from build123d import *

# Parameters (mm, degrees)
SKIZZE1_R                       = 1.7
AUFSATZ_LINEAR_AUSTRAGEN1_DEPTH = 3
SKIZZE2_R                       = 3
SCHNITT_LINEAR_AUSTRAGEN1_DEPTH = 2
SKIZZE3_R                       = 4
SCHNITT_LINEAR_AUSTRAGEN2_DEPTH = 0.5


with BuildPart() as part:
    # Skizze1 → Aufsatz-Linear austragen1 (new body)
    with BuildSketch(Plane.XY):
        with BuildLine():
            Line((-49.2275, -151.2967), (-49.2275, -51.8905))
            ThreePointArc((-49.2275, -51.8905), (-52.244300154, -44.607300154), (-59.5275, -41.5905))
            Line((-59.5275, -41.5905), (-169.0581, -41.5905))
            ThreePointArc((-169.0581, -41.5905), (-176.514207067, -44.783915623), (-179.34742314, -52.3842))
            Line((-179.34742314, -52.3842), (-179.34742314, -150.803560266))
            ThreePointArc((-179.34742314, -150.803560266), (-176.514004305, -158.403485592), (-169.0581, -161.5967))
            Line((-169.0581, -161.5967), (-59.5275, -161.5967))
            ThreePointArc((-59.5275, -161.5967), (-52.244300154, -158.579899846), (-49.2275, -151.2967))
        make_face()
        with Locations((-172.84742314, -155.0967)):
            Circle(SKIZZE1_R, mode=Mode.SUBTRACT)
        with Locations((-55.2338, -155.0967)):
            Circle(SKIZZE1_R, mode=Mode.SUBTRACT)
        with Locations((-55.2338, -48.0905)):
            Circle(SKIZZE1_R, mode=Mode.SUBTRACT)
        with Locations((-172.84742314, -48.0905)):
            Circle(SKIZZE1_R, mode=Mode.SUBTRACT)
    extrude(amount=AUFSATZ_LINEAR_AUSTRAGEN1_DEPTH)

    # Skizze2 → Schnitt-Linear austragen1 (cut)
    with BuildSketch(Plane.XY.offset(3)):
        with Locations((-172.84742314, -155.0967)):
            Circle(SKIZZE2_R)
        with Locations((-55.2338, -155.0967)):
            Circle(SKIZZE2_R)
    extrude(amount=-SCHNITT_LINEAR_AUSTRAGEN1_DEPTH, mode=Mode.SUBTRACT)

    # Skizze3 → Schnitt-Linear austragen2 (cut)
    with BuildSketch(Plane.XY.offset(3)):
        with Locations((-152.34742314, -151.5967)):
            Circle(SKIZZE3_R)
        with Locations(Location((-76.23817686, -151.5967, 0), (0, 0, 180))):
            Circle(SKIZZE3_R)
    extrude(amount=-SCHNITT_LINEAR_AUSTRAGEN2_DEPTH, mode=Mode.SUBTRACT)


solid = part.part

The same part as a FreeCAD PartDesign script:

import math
import FreeCAD as App
import Part
import Sketcher

doc = App.newDocument("Part")
params = doc.addObject("Spreadsheet::Sheet", "Params")
for row, (alias, value) in enumerate([
    ("sketch1_diameter", "3.4 mm"),
    ("sketch1_radius", "10.3 mm"),
    ("pad1_length", "3 mm"),
    ("sketch2_diameter", "6 mm"),
    ("pocket1_length", "2 mm"),
    ("sketch3_diameter", "8 mm"),
    ("pocket2_length", "0.5 mm"),
], start=1):
    params.set(f"A{row}", alias)
    params.set(f"B{row}", "=" + value)
    params.setAlias(f"B{row}", alias)

body = doc.addObject("PartDesign::Body", "Body")

# Sketch on XY plane
sketch1 = body.newObject("Sketcher::SketchObject", "Sketch")
sketch1.AttachmentSupport = (doc.getObject("XY_Plane"), [""])
sketch1.MapMode = "FlatFace"
sketch1.addGeometry([
    Part.LineSegment(App.Vector(-49.2, -151.3, 0), App.Vector(-49.2, -51.9, 0)),  # 0
    Part.ArcOfCircle(Part.Circle(App.Vector(-59.5, -51.9, 0), App.Vector(0, 0, 1), 10.3), math.radians(0), math.radians(90)),  # 1
    Part.LineSegment(App.Vector(-59.5, -41.6, 0), App.Vector(-169.1, -41.6, 0)),  # 2
    Part.ArcOfCircle(Part.Circle(App.Vector(-169.1, -51.9, 0), App.Vector(0, 0, 1), 10.3), math.radians(90), math.radians(183)),  # 3
    Part.LineSegment(App.Vector(-179.3, -52.4, 0), App.Vector(-179.3, -150.8, 0)),  # 4
    Part.ArcOfCircle(Part.Circle(App.Vector(-169.1, -151.3, 0), App.Vector(0, 0, 1), 10.3), math.radians(177), math.radians(270)),  # 5
    Part.LineSegment(App.Vector(-169.1, -161.6, 0), App.Vector(-59.5, -161.6, 0)),  # 6
    Part.ArcOfCircle(Part.Circle(App.Vector(-59.5, -151.3, 0), App.Vector(0, 0, 1), 10.3), math.radians(-90), math.radians(0)),  # 7
    Part.Circle(App.Vector(-172.8, -155.1, 0), App.Vector(0, 0, 1), 1.7),  # 8
    Part.Circle(App.Vector(-55.2, -155.1, 0), App.Vector(0, 0, 1), 1.7),  # 9
    Part.Circle(App.Vector(-172.8, -48.1, 0), App.Vector(0, 0, 1), 1.7),  # 10
    Part.Circle(App.Vector(-55.2, -48.1, 0), App.Vector(0, 0, 1), 1.7),  # 11
], False)
sketch1.addConstraint([
    Sketcher.Constraint("Tangent", 0, 2, 1, 1),
    Sketcher.Constraint("Tangent", 1, 2, 2, 1),
    Sketcher.Constraint("Tangent", 2, 2, 3, 1),
    Sketcher.Constraint("Coincident", 3, 2, 4, 1),
    Sketcher.Constraint("Coincident", 4, 2, 5, 1),
    Sketcher.Constraint("Tangent", 5, 2, 6, 1),
    Sketcher.Constraint("Tangent", 6, 2, 7, 1),
    Sketcher.Constraint("Tangent", 7, 2, 0, 1),
    Sketcher.Constraint("Vertical", 0),
    Sketcher.Constraint("Horizontal", 2),
    Sketcher.Constraint("Vertical", 4),
    Sketcher.Constraint("Horizontal", 6),
    Sketcher.Constraint("Equal", 1, 7),
    Sketcher.Constraint("Equal", 8, 9),
    Sketcher.Constraint("Equal", 9, 10),
    Sketcher.Constraint("Equal", 10, 11),
    Sketcher.Constraint("Horizontal", 8, 3, 9, 3),
    Sketcher.Constraint("Horizontal", 10, 3, 11, 3),
    Sketcher.Constraint("Vertical", 3, 3, 5, 3),
    Sketcher.Constraint("Vertical", 8, 3, 10, 3),
    Sketcher.Constraint("Vertical", 9, 3, 11, 3),
    Sketcher.Constraint("Diameter", 8, 3.4),
    Sketcher.Constraint("Radius", 1, 10.3),
    Sketcher.Constraint("DistanceY", 8, 3, 7, 3, 3.8),
    Sketcher.Constraint("DistanceY", 1, 3, 10, 3, 3.8),
    Sketcher.Constraint("DistanceX", 3, 2, 10, 3, 6.5),
    Sketcher.Constraint("DistanceX", 2, 2, 2, 1, 109.5306),
    Sketcher.Constraint("DistanceY", 0, 1, 0, 2, 99.4062),
    Sketcher.Constraint("Radius", 3, 10.301108),
    Sketcher.Constraint("Radius", 5, 10.301082),
    Sketcher.Constraint("DistanceY", 4, 2, 4, 1, 98.41936),
    Sketcher.Constraint("DistanceX", 1, 3, -1, 1, 59.5275),
    Sketcher.Constraint("DistanceY", 1, 3, -1, 1, 51.8905),
    Sketcher.Constraint("DistanceX", 9, 3, -1, 1, 55.2338),
])
sketch1.setExpression("Constraints[21]", "Params.sketch1_diameter")
sketch1.setExpression("Constraints[22]", "Params.sketch1_radius")
pad1 = body.newObject("PartDesign::Pad", "Pad")
pad1.Profile = sketch1
pad1.setExpression("Length", "Params.pad1_length")

# Sketch on XY plane
sketch2 = body.newObject("Sketcher::SketchObject", "Sketch001")
sketch2.AttachmentSupport = (doc.getObject("XY_Plane"), [""])
sketch2.MapMode = "FlatFace"
sketch2.AttachmentOffset = App.Placement(App.Vector(0, 0, 3), App.Rotation())
sketch2.addGeometry([
    Part.Circle(App.Vector(-172.8, -155.1, 0), App.Vector(0, 0, 1), 3),
    Part.Circle(App.Vector(-55.2, -155.1, 0), App.Vector(0, 0, 1), 3),
], False)
sketch2.addConstraint([
    Sketcher.Constraint("Equal", 0, 1),
    Sketcher.Constraint("Horizontal", 0, 3, 1, 3),
    Sketcher.Constraint("Diameter", 0, 6.0),
    Sketcher.Constraint("DistanceY", 0, 3, -1, 1, 155.0967),
    Sketcher.Constraint("DistanceX", 1, 3, -1, 1, 55.2338),
    Sketcher.Constraint("DistanceX", 0, 3, -1, 1, 172.847423),
])
sketch2.setExpression("Constraints[2]", "Params.sketch2_diameter")
pocket1 = body.newObject("PartDesign::Pocket", "Pocket")
pocket1.Profile = sketch2
pocket1.setExpression("Length", "Params.pocket1_length")

# Sketch on XY plane
sketch3 = body.newObject("Sketcher::SketchObject", "Sketch002")
sketch3.AttachmentSupport = (doc.getObject("XY_Plane"), [""])
sketch3.MapMode = "FlatFace"
sketch3.AttachmentOffset = App.Placement(App.Vector(0, 0, 3), App.Rotation())
sketch3.addGeometry([
    Part.Circle(App.Vector(-152.3, -151.6, 0), App.Vector(0, 0, 1), 4),
    Part.Circle(App.Vector(-76.2, -151.6, 0), App.Vector(0, 0, 1), 4),
], False)
sketch3.addConstraint([
    Sketcher.Constraint("Equal", 0, 1),
    Sketcher.Constraint("Horizontal", 0, 3, 1, 3),
    Sketcher.Constraint("Diameter", 0, 8.0),
    Sketcher.Constraint("DistanceY", 0, 3, -1, 1, 151.5967),
    Sketcher.Constraint("DistanceX", 0, 3, -1, 1, 152.347423),
    Sketcher.Constraint("DistanceX", 1, 3, -1, 1, 76.238177),
])
sketch3.setExpression("Constraints[2]", "Params.sketch3_diameter")
pocket2 = body.newObject("PartDesign::Pocket", "Pocket001")
pocket2.Profile = sketch3
pocket2.setExpression("Length", "Params.pocket2_length")

doc.recompute()
